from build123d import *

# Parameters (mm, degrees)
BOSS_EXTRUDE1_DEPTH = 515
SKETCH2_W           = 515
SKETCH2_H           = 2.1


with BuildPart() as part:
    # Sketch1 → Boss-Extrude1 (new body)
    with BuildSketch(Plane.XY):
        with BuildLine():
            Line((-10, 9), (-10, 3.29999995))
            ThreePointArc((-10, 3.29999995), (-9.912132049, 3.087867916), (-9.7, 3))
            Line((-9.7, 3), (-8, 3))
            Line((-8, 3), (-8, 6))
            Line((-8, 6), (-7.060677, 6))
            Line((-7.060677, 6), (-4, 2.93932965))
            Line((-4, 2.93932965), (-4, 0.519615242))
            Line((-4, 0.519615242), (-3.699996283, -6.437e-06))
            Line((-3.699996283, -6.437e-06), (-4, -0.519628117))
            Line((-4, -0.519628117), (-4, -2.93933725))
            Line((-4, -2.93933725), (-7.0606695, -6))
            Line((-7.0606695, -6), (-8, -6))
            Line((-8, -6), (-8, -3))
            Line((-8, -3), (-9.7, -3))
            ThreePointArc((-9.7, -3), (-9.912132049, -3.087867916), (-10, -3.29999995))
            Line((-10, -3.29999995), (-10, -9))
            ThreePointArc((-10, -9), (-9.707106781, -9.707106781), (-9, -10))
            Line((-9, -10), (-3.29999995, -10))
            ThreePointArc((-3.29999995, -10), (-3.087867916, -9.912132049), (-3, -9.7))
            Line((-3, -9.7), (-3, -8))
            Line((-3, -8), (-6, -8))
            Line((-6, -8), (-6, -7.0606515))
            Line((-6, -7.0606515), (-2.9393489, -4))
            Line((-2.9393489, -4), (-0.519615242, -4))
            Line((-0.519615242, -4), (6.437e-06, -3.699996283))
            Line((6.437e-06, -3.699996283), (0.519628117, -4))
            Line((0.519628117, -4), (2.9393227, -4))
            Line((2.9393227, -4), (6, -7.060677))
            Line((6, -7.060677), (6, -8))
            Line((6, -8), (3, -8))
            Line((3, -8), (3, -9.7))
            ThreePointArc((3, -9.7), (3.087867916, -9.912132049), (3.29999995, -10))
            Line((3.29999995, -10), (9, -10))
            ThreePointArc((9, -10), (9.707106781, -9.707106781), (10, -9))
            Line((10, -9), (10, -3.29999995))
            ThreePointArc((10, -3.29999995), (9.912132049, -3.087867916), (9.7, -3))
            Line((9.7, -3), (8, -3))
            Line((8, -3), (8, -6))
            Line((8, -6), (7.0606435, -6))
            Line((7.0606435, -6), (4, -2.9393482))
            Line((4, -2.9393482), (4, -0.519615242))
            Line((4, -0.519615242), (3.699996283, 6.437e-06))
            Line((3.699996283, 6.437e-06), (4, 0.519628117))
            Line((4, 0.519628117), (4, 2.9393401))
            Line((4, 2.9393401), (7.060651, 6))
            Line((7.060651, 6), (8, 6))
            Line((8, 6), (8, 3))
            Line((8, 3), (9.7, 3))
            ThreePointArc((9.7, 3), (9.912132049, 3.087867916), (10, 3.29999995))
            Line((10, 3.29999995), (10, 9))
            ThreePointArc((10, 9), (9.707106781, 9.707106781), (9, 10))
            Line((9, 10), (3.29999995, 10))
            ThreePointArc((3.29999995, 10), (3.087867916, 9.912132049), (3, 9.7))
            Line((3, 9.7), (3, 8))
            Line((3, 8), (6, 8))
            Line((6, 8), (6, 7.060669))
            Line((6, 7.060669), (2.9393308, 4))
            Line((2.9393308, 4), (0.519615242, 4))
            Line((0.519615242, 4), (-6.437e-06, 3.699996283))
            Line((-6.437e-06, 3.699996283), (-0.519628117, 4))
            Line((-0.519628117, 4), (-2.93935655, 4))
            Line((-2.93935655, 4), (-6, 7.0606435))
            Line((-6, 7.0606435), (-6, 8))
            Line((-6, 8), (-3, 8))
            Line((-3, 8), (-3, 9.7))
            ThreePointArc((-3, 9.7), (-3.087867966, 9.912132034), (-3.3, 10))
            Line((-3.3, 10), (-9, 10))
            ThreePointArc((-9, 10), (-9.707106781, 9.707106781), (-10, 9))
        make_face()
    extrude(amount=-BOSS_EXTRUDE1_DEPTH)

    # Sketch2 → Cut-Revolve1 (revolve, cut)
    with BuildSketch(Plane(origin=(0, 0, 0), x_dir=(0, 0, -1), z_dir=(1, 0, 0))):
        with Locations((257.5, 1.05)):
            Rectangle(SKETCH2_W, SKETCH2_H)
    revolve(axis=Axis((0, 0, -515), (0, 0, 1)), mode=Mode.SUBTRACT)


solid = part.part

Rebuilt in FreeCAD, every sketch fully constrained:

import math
import FreeCAD as App
import Part
import Sketcher
from FreeCAD import Vector
Q = App.Units.Quantity

doc = App.newDocument("Part")
params = doc.addObject("Spreadsheet::Sheet", "Params")
for row, (alias, value) in enumerate([
    ("sketch1_radius", "1 mm"),
    ("sketch1_radius2", "0.3 mm"),
    ("sketch1_width", "3 mm"),
    ("sketch1_width2", "1.7 mm"),
    ("sketch1_width3", "5.7 mm"),
    ("pad1_length", "515 mm"),
    ("sketch2_height", "515 mm"),
    ("sketch2_width", "2.1 mm"),
    ("groove_angle", "360 deg"),
], start=1):
    params.set(f"A{row}", alias)
    params.set(f"B{row}", "=" + value)
    params.setAlias(f"B{row}", alias)

body = doc.addObject("PartDesign::Body", "Body")

sketch1 = doc.addObject("Sketcher::SketchObject", "Sketch")
body.addObject(sketch1)
sketch1.AttachmentSupport = (doc.XY_Plane, [""])
sketch1.MapMode = "FlatFace"
sketch1.addGeometry([
    Part.LineSegment(Vector(-10, 9, 0), Vector(-10, 3.3, 0)),
    Part.ArcOfCircle(Part.Circle(Vector(-9.7, 3.3, 0), Vector(0, 0, 1), 0.3), math.radians(179.999989), math.radians(270.000021)),
    Part.LineSegment(Vector(-9.7, 3, 0), Vector(-8, 3, 0)),
    Part.LineSegment(Vector(-8, 3, 0), Vector(-8, 6, 0)),
    Part.LineSegment(Vector(-8, 6, 0), Vector(-7.060677, 6, 0)),
    Part.LineSegment(Vector(-7.060677, 6, 0), Vector(-4, 2.93933, 0)),
    Part.LineSegment(Vector(-4, 2.93933, 0), Vector(-4, 0.519615, 0)),
    Part.LineSegment(Vector(-4, 0.519615, 0), Vector(-3.699996, -0.000006, 0)),
    Part.LineSegment(Vector(-3.699996, -0.000006, 0), Vector(-4, -0.519628, 0)),
    Part.LineSegment(Vector(-4, -0.519628, 0), Vector(-4, -2.939337, 0)),
    Part.LineSegment(Vector(-4, -2.939337, 0), Vector(-7.06067, -6, 0)),
    Part.LineSegment(Vector(-7.06067, -6, 0), Vector(-8, -6, 0)),
    Part.LineSegment(Vector(-8, -6, 0), Vector(-8, -3, 0)),
    Part.LineSegment(Vector(-8, -3, 0), Vector(-9.7, -3, 0)),
    Part.ArcOfCircle(Part.Circle(Vector(-9.7, -3.3, 0), Vector(0, 0, 1), 0.3), math.radians(89.999979), math.radians(180.000011)),
    Part.LineSegment(Vector(-10, -3.3, 0), Vector(-10, -9, 0)),
    Part.ArcOfCircle(Part.Circle(Vector(-9, -9, 0), Vector(0, 0, 1), 1), math.radians(-180), math.radians(-90)),
    Part.LineSegment(Vector(-9, -10, 0), Vector(-3.3, -10, 0)),
    Part.ArcOfCircle(Part.Circle(Vector(-3.3, -9.7, 0), Vector(0, 0, 1), 0.3), math.radians(-90.000011), math.radians(0.000021)),
    Part.LineSegment(Vector(-3, -9.7, 0), Vector(-3, -8, 0)),
    Part.LineSegment(Vector(-3, -8, 0), Vector(-6, -8, 0)),
    Part.LineSegment(Vector(-6, -8, 0), Vector(-6, -7.060651, 0)),
    Part.LineSegment(Vector(-6, -7.060651, 0), Vector(-2.939349, -4, 0)),
    Part.LineSegment(Vector(-2.939349, -4, 0), Vector(-0.519615, -4, 0)),
    Part.LineSegment(Vector(-0.519615, -4, 0), Vector(0.000006, -3.699996, 0)),
    Part.LineSegment(Vector(0.000006, -3.699996, 0), Vector(0.519628, -4, 0)),
    Part.LineSegment(Vector(0.519628, -4, 0), Vector(2.939323, -4, 0)),
    Part.LineSegment(Vector(2.939323, -4, 0), Vector(6, -7.060677, 0)),
    Part.LineSegment(Vector(6, -7.060677, 0), Vector(6, -8, 0)),
    Part.LineSegment(Vector(6, -8, 0), Vector(3, -8, 0)),
    Part.LineSegment(Vector(3, -8, 0), Vector(3, -9.7, 0)),
    Part.ArcOfCircle(Part.Circle(Vector(3.3, -9.7, 0), Vector(0, 0, 1), 0.3), math.radians(179.999979), math.radians(270.000011)),
    Part.LineSegment(Vector(3.3, -10, 0), Vector(9, -10, 0)),
    Part.ArcOfCircle(Part.Circle(Vector(9, -9, 0), Vector(0, 0, 1), 1), math.radians(-90), math.radians(0)),
    Part.LineSegment(Vector(10, -9, 0), Vector(10, -3.3, 0)),
    Part.ArcOfCircle(Part.Circle(Vector(9.7, -3.3, 0), Vector(0, 0, 1), 0.3), math.radians(-0.000011), math.radians(90.000021)),
    Part.LineSegment(Vector(9.7, -3, 0), Vector(8, -3, 0)),
    Part.LineSegment(Vector(8, -3, 0), Vector(8, -6, 0)),
    Part.LineSegment(Vector(8, -6, 0), Vector(7.060644, -6, 0)),
    Part.LineSegment(Vector(7.060644, -6, 0), Vector(4, -2.939348, 0)),
    Part.LineSegment(Vector(4, -2.939348, 0), Vector(4, -0.519615, 0)),
    Part.LineSegment(Vector(4, -0.519615, 0), Vector(3.699996, 0.000006, 0)),
    Part.LineSegment(Vector(3.699996, 0.000006, 0), Vector(4, 0.519628, 0)),
    Part.LineSegment(Vector(4, 0.519628, 0), Vector(4, 2.93934, 0)),
    Part.LineSegment(Vector(4, 2.93934, 0), Vector(7.060651, 6, 0)),
    Part.LineSegment(Vector(7.060651, 6, 0), Vector(8, 6, 0)),
    Part.LineSegment(Vector(8, 6, 0), Vector(8, 3, 0)),
    Part.LineSegment(Vector(8, 3, 0), Vector(9.7, 3, 0)),
    Part.ArcOfCircle(Part.Circle(Vector(9.7, 3.3, 0), Vector(0, 0, 1), 0.3), math.radians(-90.000021), math.radians(0.000011)),
    Part.LineSegment(Vector(10, 3.3, 0), Vector(10, 9, 0)),
    Part.ArcOfCircle(Part.Circle(Vector(9, 9, 0), Vector(0, 0, 1), 1), math.radians(0), math.radians(90)),
    Part.LineSegment(Vector(9, 10, 0), Vector(3.3, 10, 0)),
    Part.ArcOfCircle(Part.Circle(Vector(3.3, 9.7, 0), Vector(0, 0, 1), 0.3), math.radians(89.999989), math.radians(180.000021)),
    Part.LineSegment(Vector(3, 9.7, 0), Vector(3, 8, 0)),
    Part.LineSegment(Vector(3, 8, 0), Vector(6, 8, 0)),
    Part.LineSegment(Vector(6, 8, 0), Vector(6, 7.060669, 0)),
    Part.LineSegment(Vector(6, 7.060669, 0), Vector(2.939331, 4, 0)),
    Part.LineSegment(Vector(2.939331, 4, 0), Vector(0.519615, 4, 0)),
    Part.LineSegment(Vector(0.519615, 4, 0), Vector(-0.000006, 3.699996, 0)),
    Part.LineSegment(Vector(-0.000006, 3.699996, 0), Vector(-0.519628, 4, 0)),
    Part.LineSegment(Vector(-0.519628, 4, 0), Vector(-2.939357, 4, 0)),
    Part.LineSegment(Vector(-2.939357, 4, 0), Vector(-6, 7.060644, 0)),
    Part.LineSegment(Vector(-6, 7.060644, 0), Vector(-6, 8, 0)),
    Part.LineSegment(Vector(-6, 8, 0), Vector(-3, 8, 0)),
    Part.LineSegment(Vector(-3, 8, 0), Vector(-3, 9.7, 0)),
    Part.ArcOfCircle(Part.Circle(Vector(-3.3, 9.7, 0), Vector(0, 0, 1), 0.3), math.radians(0), math.radians(90)),
    Part.LineSegment(Vector(-3.3, 10, 0), Vector(-9, 10, 0)),
    Part.ArcOfCircle(Part.Circle(Vector(-9, 9, 0), Vector(0, 0, 1), 1), math.radians(90), math.radians(180)),
], False)
sketch1.addConstraint([
    Sketcher.Constraint("Tangent", 0, 2, 1, 1),
    Sketcher.Constraint("Tangent", 1, 2, 2, 1),
    Sketcher.Constraint("Coincident", 2, 2, 3, 1),
    Sketcher.Constraint("Coincident", 3, 2, 4, 1),
    Sketcher.Constraint("Coincident", 4, 2, 5, 1),
    Sketcher.Constraint("Coincident", 5, 2, 6, 1),
    Sketcher.Constraint("Coincident", 6, 2, 7, 1),
    Sketcher.Constraint("Coincident", 7, 2, 8, 1),
    Sketcher.Constraint("Coincident", 8, 2, 9, 1),
    Sketcher.Constraint("Coincident", 9, 2, 10, 1),
    Sketcher.Constraint("Coincident", 10, 2, 11, 1),
    Sketcher.Constraint("Coincident", 11, 2, 12, 1),
    Sketcher.Constraint("Coincident", 12, 2, 13, 1),
    Sketcher.Constraint("Tangent", 13, 2, 14, 1),
    Sketcher.Constraint("Tangent", 14, 2, 15, 1),
    Sketcher.Constraint("Tangent", 15, 2, 16, 1),
    Sketcher.Constraint("Tangent", 16, 2, 17, 1),
    Sketcher.Constraint("Tangent", 17, 2, 18, 1),
    Sketcher.Constraint("Tangent", 18, 2, 19, 1),
    Sketcher.Constraint("Coincident", 19, 2, 20, 1),
    Sketcher.Constraint("Coincident", 20, 2, 21, 1),
    Sketcher.Constraint("Coincident", 21, 2, 22, 1),
    Sketcher.Constraint("Coincident", 22, 2, 23, 1),
    Sketcher.Constraint("Coincident", 23, 2, 24, 1),
    Sketcher.Constraint("Coincident", 24, 2, 25, 1),
    Sketcher.Constraint("Coincident", 25, 2, 26, 1),
    Sketcher.Constraint("Coincident", 26, 2, 27, 1),
    Sketcher.Constraint("Coincident", 27, 2, 28, 1),
    Sketcher.Constraint("Coincident", 28, 2, 29, 1),
    Sketcher.Constraint("Coincident", 29, 2, 30, 1),
    Sketcher.Constraint("Tangent", 30, 2, 31, 1),
    Sketcher.Constraint("Tangent", 31, 2, 32, 1),
    Sketcher.Constraint("Tangent", 32, 2, 33, 1),
    Sketcher.Constraint("Tangent", 33, 2, 34, 1),
    Sketcher.Constraint("Tangent", 34, 2, 35, 1),
    Sketcher.Constraint("Tangent", 35, 2, 36, 1),
    Sketcher.Constraint("Coincident", 36, 2, 37, 1),
    Sketcher.Constraint("Coincident", 37, 2, 38, 1),
    Sketcher.Constraint("Coincident", 38, 2, 39, 1),
    Sketcher.Constraint("Coincident", 39, 2, 40, 1),
    Sketcher.Constraint("Coincident", 40, 2, 41, 1),
    Sketcher.Constraint("Coincident", 41, 2, 42, 1),
    Sketcher.Constraint("Coincident", 42, 2, 43, 1),
    Sketcher.Constraint("Coincident", 43, 2, 44, 1),
    Sketcher.Constraint("Coincident", 44, 2, 45, 1),
    Sketcher.Constraint("Coincident", 45, 2, 46, 1),
    Sketcher.Constraint("Coincident", 46, 2, 47, 1),
    Sketcher.Constraint("Tangent", 47, 2, 48, 1),
    Sketcher.Constraint("Tangent", 48, 2, 49, 1),
    Sketcher.Constraint("Tangent", 49, 2, 50, 1),
    Sketcher.Constraint("Tangent", 50, 2, 51, 1),
    Sketcher.Constraint("Tangent", 51, 2, 52, 1),
    Sketcher.Constraint("Tangent", 52, 2, 53, 1),
    Sketcher.Constraint("Coincident", 53, 2, 54, 1),
    Sketcher.Constraint("Coincident", 54, 2, 55, 1),
    Sketcher.Constraint("Coincident", 55, 2, 56, 1),
    Sketcher.Constraint("Coincident", 56, 2, 57, 1),
    Sketcher.Constraint("Coincident", 57, 2, 58, 1),
    Sketcher.Constraint("Coincident", 58, 2, 59, 1),
    Sketcher.Constraint("Coincident", 59, 2, 60, 1),
    Sketcher.Constraint("Coincident", 60, 2, 61, 1),
    Sketcher.Constraint("Coincident", 61, 2, 62, 1),
    Sketcher.Constraint("Coincident", 62, 2, 63, 1),
    Sketcher.Constraint("Coincident", 63, 2, 64, 1),
    Sketcher.Constraint("Tangent", 64, 2, 65, 1),
    Sketcher.Constraint("Tangent", 65, 2, 66, 1),
    Sketcher.Constraint("Tangent", 66, 2, 67, 1),
    Sketcher.Constraint("Tangent", 67, 2, 0, 1),
    Sketcher.Constraint("Vertical", 0),
    Sketcher.Constraint("Horizontal", 2),
    Sketcher.Constraint("Vertical", 3),
    Sketcher.Constraint("Horizontal", 4),
    Sketcher.Constraint("Vertical", 6),
    Sketcher.Constraint("Vertical", 9),
    Sketcher.Constraint("Horizontal", 11),
    Sketcher.Constraint("Vertical", 12),
    Sketcher.Constraint("Horizontal", 13),
    Sketcher.Constraint("Vertical", 15),
    Sketcher.Constraint("Horizontal", 17),
    Sketcher.Constraint("Vertical", 19),
    Sketcher.Constraint("Horizontal", 20),
    Sketcher.Constraint("Vertical", 21),
    Sketcher.Constraint("Horizontal", 23),
    Sketcher.Constraint("Horizontal", 26),
    Sketcher.Constraint("Vertical", 28),
    Sketcher.Constraint("Horizontal", 29),
    Sketcher.Constraint("Vertical", 30),
    Sketcher.Constraint("Horizontal", 32),
    Sketcher.Constraint("Vertical", 34),
    Sketcher.Constraint("Horizontal", 36),
    Sketcher.Constraint("Vertical", 37),
    Sketcher.Constraint("Horizontal", 38),
    Sketcher.Constraint("Vertical", 40),
    Sketcher.Constraint("Vertical", 43),
    Sketcher.Constraint("Horizontal", 45),
    Sketcher.Constraint("Vertical", 46),
    Sketcher.Constraint("Horizontal", 47),
    Sketcher.Constraint("Vertical", 49),
    Sketcher.Constraint("Horizontal", 51),
    Sketcher.Constraint("Vertical", 53),
    Sketcher.Constraint("Horizontal", 54),
    Sketcher.Constraint("Vertical", 55),
    Sketcher.Constraint("Horizontal", 57),
    Sketcher.Constraint("Horizontal", 60),
    Sketcher.Constraint("Vertical", 62),
    Sketcher.Constraint("Horizontal", 63),
    Sketcher.Constraint("Vertical", 64),
    Sketcher.Constraint("Horizontal", 66),
    Sketcher.Constraint("Equal", 1, 14),
    Sketcher.Constraint("Equal", 14, 18),
    Sketcher.Constraint("Equal", 18, 31),
    Sketcher.Constraint("Equal", 16, 33),
    Sketcher.Constraint("Equal", 31, 35),
    Sketcher.Constraint("Equal", 35, 48),
    Sketcher.Constraint("Equal", 33, 50),
    Sketcher.Constraint("Equal", 48, 52),
    Sketcher.Constraint("Equal", 52, 65),
    Sketcher.Constraint("Equal", 50, 67),
    Sketcher.Constraint("Symmetric", 1, 3, 35, 3, -1, 1),
    Sketcher.Constraint("Symmetric", 14, 3, 48, 3, -1, 1),
    Sketcher.Constraint("Symmetric", 18, 3, 52, 3, -1, 1),
    Sketcher.Constraint("Symmetric", 31, 3, 65, 3, -1, 1),
    Sketcher.Constraint("Symmetric", 3, 2, 37, 2, -1, 1),
    Sketcher.Constraint("Symmetric", 6, 2, 40, 2, -1, 1),
    Sketcher.Constraint("Symmetric", 7, 2, 41, 2, -1, 1),
    Sketcher.Constraint("Symmetric", 8, 2, 42, 2, -1, 1),
    Sketcher.Constraint("Symmetric", 11, 2, 45, 2, -1, 1),
    Sketcher.Constraint("Symmetric", 20, 2, 54, 2, -1, 1),
    Sketcher.Constraint("Symmetric", 23, 2, 57, 2, -1, 1),
    Sketcher.Constraint("Symmetric", 24, 2, 58, 2, -1, 1),
    Sketcher.Constraint("Symmetric", 25, 2, 59, 2, -1, 1),
    Sketcher.Constraint("Symmetric", 28, 2, 62, 2, -1, 1),
    Sketcher.Constraint("Symmetric", 18, 3, 31, 3, -2),
    Sketcher.Constraint("Symmetric", 14, 3, 35, 3, -2),
    Sketcher.Constraint("Symmetric", 20, 2, 28, 2, -2),
    Sketcher.Constraint("Symmetric", 11, 2, 37, 2, -2),
    Sketcher.Constraint("Symmetric", 5, 2, 9, 2, -1),
    Sketcher.Constraint("Symmetric", 26, 2, 56, 2, -1),
    Sketcher.Constraint("Parallel", 10, 22),
    Sketcher.Constraint("Perpendicular", 7, 24),
    Sketcher.Constraint("Perpendicular", 8, 25),
    Sketcher.Constraint("Perpendicular", 22, 27),
    Sketcher.Constraint("Parallel", 27, 39),
    Sketcher.Constraint("Perpendicular", 27, 44),
    Sketcher.Constraint("Parallel", 44, 56),
    Sketcher.Constraint("Perpendicular", 56, 61),
    Sketcher.Constraint("Equal", 66, 0),
    Sketcher.Constraint("Equal", 63, 3),
    Sketcher.Constraint("Equal", 57, 6),
    Sketcher.Constraint("Equal", 47, 19),
    Sketcher.Constraint("Equal", 45, 21),
    Sketcher.Constraint("Equal", 4, 28),
    Sketcher.Constraint("Equal", 23, 40),
    Sketcher.Constraint("Equal", 11, 55),
    Sketcher.Constraint("Equal", 38, 62),
    Sketcher.Constraint("Equal", 7, 8),
    Sketcher.Constraint("Equal", 8, 24),
    Sketcher.Constraint("Radius", 16, Q("1 mm")),
    Sketcher.Constraint("Radius", 1, Q("0.3 mm")),
    Sketcher.Constraint("DistanceX", 20, 2, 20, 1, Q("3 mm")),
    Sketcher.Constraint("Angle", 7, Q("-60 deg")),
    Sketcher.Constraint("Angle", 22, Q("45.000004 deg")),
    Sketcher.Constraint("DistanceX", 2, 1, 2, 2, Q("1.7 mm")),
    Sketcher.Constraint("DistanceX", 17, 1, 17, 2, Q("5.7 mm")),
    Sketcher.Constraint("DistanceX", 16, 3, -1, 1, Q("9 mm")),
    Sketcher.Constraint("DistanceY", 16, 3, -1, 1, Q("9 mm")),
    Sketcher.Constraint("DistanceX", 5, 2, -1, 1, Q("4 mm")),
    Sketcher.Constraint("DistanceY", 22, 2, -1, 1, Q("4 mm")),
    Sketcher.Constraint("DistanceX", 11, 2, 11, 1, Q("0.93933 mm")),
    Sketcher.Constraint("DistanceX", 45, 1, 45, 2, Q("0.939349 mm")),
    Sketcher.Constraint("DistanceX", 60, 2, 60, 1, Q("2.419728 mm")),
    Sketcher.Constraint("DistanceX", 23, 1, 23, 2, Q("2.419734 mm")),
])
sketch1.setExpression("Constraints[157]", "Params.sketch1_radius")
sketch1.setExpression("Constraints[158]", "Params.sketch1_radius2")
sketch1.setExpression("Constraints[159]", "Params.sketch1_width")
sketch1.setExpression("Constraints[162]", "Params.sketch1_width2")
sketch1.setExpression("Constraints[163]", "Params.sketch1_width3")
pad1 = doc.addObject("PartDesign::Pad", "Pad")
body.addObject(pad1)
pad1.Profile = sketch1
pad1.setExpression("Length", "Params.pad1_length")
pad1.Reversed = True

sketch2 = doc.addObject("Sketcher::SketchObject", "Sketch001")
body.addObject(sketch2)
sketch2.AttachmentSupport = (doc.YZ_Plane, [""])
sketch2.MapMode = "FlatFace"
sketch2.addGeometry([
    Part.LineSegment(Vector(2.1, 0, 0), Vector(0, 0, 0)),
    Part.LineSegment(Vector(0, 0, 0), Vector(0, -515, 0)),
    Part.LineSegment(Vector(0, -515, 0), Vector(2.1, -515, 0)),
    Part.LineSegment(Vector(2.1, -515, 0), Vector(2.1, 0, 0)),
], False)
sketch2.addConstraint([
    Sketcher.Constraint("Coincident", 0, 2, 1, 1),
    Sketcher.Constraint("Coincident", 1, 2, 2, 1),
    Sketcher.Constraint("Coincident", 2, 2, 3, 1),
    Sketcher.Constraint("Coincident", 3, 2, 0, 1),
    Sketcher.Constraint("Horizontal", 0),
    Sketcher.Constraint("Vertical", 1),
    Sketcher.Constraint("Horizontal", 2),
    Sketcher.Constraint("Vertical", 3),
    Sketcher.Constraint("Coincident", 0, 2, -1, 1),
    Sketcher.Constraint("DistanceY", 1, 2, 1, 1, Q("515 mm")),
    Sketcher.Constraint("DistanceX", 0, 2, 0, 1, Q("2.1 mm")),
])
sketch2.setExpression("Constraints[9]", "Params.sketch2_height")
sketch2.setExpression("Constraints[10]", "Params.sketch2_width")
groove = doc.addObject("PartDesign::Groove", "Groove")
body.addObject(groove)
groove.Profile = sketch2
groove.ReferenceAxis = (sketch2, ["V_Axis"])
groove.setExpression("Angle", "Params.groove_angle")

doc.recompute()
